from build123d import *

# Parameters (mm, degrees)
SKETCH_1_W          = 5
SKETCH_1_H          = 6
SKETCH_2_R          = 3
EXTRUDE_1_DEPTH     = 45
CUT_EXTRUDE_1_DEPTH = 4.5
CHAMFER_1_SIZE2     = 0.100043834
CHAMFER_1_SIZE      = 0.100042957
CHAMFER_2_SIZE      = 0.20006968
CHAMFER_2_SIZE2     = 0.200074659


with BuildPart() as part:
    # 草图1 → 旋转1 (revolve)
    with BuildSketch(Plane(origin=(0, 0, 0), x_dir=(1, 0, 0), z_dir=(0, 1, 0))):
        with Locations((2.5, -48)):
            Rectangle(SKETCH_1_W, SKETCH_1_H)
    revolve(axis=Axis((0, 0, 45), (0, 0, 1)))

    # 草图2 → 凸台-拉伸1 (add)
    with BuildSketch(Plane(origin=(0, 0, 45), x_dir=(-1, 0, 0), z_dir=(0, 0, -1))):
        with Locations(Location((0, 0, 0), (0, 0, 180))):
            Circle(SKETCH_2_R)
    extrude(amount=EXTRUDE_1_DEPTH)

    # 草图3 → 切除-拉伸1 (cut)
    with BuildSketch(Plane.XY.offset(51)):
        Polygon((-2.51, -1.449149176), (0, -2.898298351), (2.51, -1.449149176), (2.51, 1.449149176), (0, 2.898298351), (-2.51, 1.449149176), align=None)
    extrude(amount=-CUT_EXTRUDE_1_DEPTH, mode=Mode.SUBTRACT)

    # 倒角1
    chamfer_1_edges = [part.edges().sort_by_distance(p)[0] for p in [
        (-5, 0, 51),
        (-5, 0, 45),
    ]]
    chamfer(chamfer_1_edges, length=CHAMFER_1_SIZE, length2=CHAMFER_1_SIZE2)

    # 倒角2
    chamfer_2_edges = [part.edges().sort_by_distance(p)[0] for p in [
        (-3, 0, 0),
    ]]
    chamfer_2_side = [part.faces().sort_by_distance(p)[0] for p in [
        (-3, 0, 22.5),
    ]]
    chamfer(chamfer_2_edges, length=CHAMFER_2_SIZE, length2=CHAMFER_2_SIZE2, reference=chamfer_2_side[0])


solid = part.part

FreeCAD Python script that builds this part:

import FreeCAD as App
import Part
import Sketcher
Q = App.Units.Quantity


def edges_at(feature, points):
    """Names of the edges that pass closest to the given points."""
    edges = feature.Shape.Edges
    near = lambda p: min(range(len(edges)), key=lambda i: edges[i].distToShape(Part.Vertex(*p))[0])
    return sorted({f"Edge{near(p) + 1}" for p in points})


def add_polygon(sketch, points):
    """Adds a closed chain of lines whose ends are joined by coincident constraints."""
    first, n = sketch.GeometryCount, len(points)
    for a, b in zip(points, points[1:] + points[:1]):
        sketch.addGeometry(Part.LineSegment(App.Vector(*a, 0), App.Vector(*b, 0)), False)
    for i in range(n):
        sketch.addConstraint(Sketcher.Constraint("Coincident", first + i, 2, first + (i + 1) % n, 1))

doc = App.newDocument("Part")
body = doc.addObject("PartDesign::Body", "Body")

sketch1 = doc.addObject("Sketcher::SketchObject", "Sketch")
body.addObject(sketch1)
sketch1.AttachmentSupport = (doc.XZ_Plane, [""])
sketch1.MapMode = "FlatFace"
add_polygon(sketch1, [(0, 45), (0, 51), (5, 51), (5, 45)])
sketch1.addConstraint(Sketcher.Constraint("Vertical", 0))
sketch1.addConstraint(Sketcher.Constraint("Horizontal", 1))
sketch1.addConstraint(Sketcher.Constraint("Vertical", 2))
sketch1.addConstraint(Sketcher.Constraint("Horizontal", 3))
sketch1.addConstraint(Sketcher.Constraint("PointOnObject", 0, 2, -2))
sketch1.addConstraint(Sketcher.Constraint("DistanceX", 1, 1, 1, 2, Q("5 mm")))
sketch1.addConstraint(Sketcher.Constraint("DistanceY", 0, 1, 0, 2, Q("6 mm")))
sketch1.addConstraint(Sketcher.Constraint("DistanceY", -1, 1, 0, 2, Q("51 mm")))
revolution = doc.addObject("PartDesign::Revolution", "Revolution")
body.addObject(revolution)
revolution.Profile = sketch1
revolution.ReferenceAxis = (sketch1, ["V_Axis"])
revolution.Angle = 360

sketch2 = doc.addObject("Sketcher::SketchObject", "Sketch001")
body.addObject(sketch2)
sketch2.AttachmentSupport = (doc.XY_Plane, [""])
sketch2.MapMode = "FlatFace"
sketch2.AttachmentOffset = App.Placement(App.Vector(0, 0, 45), App.Rotation())
sketch2.addGeometry(Part.Circle(App.Vector(0, 0, 0), App.Vector(0, 0, 1), 3), False)
sketch2.addConstraint(Sketcher.Constraint("Coincident", 0, 3, -1, 1))
sketch2.addConstraint(Sketcher.Constraint("Diameter", 0, Q("6 mm")))
pad1 = doc.addObject("PartDesign::Pad", "Pad")
body.addObject(pad1)
pad1.Profile = sketch2
pad1.Length = 45
pad1.Reversed = True

sketch3 = doc.addObject("Sketcher::SketchObject", "Sketch002")
body.addObject(sketch3)
sketch3.AttachmentSupport = (doc.XY_Plane, [""])
sketch3.MapMode = "FlatFace"
sketch3.AttachmentOffset = App.Placement(App.Vector(0, 0, 51), App.Rotation())
add_polygon(sketch3, [(-2.5, -1.4), (0, -2.9), (2.5, -1.4), (2.5, 1.4), (0, 2.9), (-2.5, 1.4)])
sketch3.addConstraint(Sketcher.Constraint("Vertical", 2))
sketch3.addConstraint(Sketcher.Constraint("Vertical", 5))
sketch3.addConstraint(Sketcher.Constraint("Symmetric", 0, 2, 3, 2, -1, 1))
sketch3.addConstraint(Sketcher.Constraint("Symmetric", 1, 2, 4, 2, -1, 1))
sketch3.addConstraint(Sketcher.Constraint("PointOnObject", 0, 2, -2))
sketch3.addConstraint(Sketcher.Constraint("Parallel", 0, 3))
sketch3.addConstraint(Sketcher.Constraint("Horizontal", 2, 2, 4, 2))
sketch3.addConstraint(Sketcher.Constraint("Angle", 0, Q("-30 deg")))
sketch3.addConstraint(Sketcher.Constraint("DistanceX", -1, 1, 1, 2, Q("2.51 mm")))
sketch3.addConstraint(Sketcher.Constraint("DistanceY", 2, 1, 2, 2, Q("2.898298 mm")))
pocket1 = doc.addObject("PartDesign::Pocket", "Pocket")
body.addObject(pocket1)
pocket1.Profile = sketch3
pocket1.Length = 4.5
doc.recompute()

chamfer = doc.addObject("PartDesign::Chamfer", "Chamfer")
body.addObject(chamfer)
chamfer.Base = (pocket1, edges_at(pocket1, [(-5, 0, 51), (-5, 0, 45)]))
chamfer.ChamferType = "Two distances"
chamfer.Size = 0.100043
chamfer.Size2 = 0.100044
doc.recompute()

chamfer2 = doc.addObject("PartDesign::Chamfer", "Chamfer001")
body.addObject(chamfer2)
chamfer2.Base = (chamfer, edges_at(chamfer, [(-3, 0, 0)]))
chamfer2.ChamferType = "Two distances"
chamfer2.Size = 0.20007
chamfer2.Size2 = 0.200075

doc.recompute()
